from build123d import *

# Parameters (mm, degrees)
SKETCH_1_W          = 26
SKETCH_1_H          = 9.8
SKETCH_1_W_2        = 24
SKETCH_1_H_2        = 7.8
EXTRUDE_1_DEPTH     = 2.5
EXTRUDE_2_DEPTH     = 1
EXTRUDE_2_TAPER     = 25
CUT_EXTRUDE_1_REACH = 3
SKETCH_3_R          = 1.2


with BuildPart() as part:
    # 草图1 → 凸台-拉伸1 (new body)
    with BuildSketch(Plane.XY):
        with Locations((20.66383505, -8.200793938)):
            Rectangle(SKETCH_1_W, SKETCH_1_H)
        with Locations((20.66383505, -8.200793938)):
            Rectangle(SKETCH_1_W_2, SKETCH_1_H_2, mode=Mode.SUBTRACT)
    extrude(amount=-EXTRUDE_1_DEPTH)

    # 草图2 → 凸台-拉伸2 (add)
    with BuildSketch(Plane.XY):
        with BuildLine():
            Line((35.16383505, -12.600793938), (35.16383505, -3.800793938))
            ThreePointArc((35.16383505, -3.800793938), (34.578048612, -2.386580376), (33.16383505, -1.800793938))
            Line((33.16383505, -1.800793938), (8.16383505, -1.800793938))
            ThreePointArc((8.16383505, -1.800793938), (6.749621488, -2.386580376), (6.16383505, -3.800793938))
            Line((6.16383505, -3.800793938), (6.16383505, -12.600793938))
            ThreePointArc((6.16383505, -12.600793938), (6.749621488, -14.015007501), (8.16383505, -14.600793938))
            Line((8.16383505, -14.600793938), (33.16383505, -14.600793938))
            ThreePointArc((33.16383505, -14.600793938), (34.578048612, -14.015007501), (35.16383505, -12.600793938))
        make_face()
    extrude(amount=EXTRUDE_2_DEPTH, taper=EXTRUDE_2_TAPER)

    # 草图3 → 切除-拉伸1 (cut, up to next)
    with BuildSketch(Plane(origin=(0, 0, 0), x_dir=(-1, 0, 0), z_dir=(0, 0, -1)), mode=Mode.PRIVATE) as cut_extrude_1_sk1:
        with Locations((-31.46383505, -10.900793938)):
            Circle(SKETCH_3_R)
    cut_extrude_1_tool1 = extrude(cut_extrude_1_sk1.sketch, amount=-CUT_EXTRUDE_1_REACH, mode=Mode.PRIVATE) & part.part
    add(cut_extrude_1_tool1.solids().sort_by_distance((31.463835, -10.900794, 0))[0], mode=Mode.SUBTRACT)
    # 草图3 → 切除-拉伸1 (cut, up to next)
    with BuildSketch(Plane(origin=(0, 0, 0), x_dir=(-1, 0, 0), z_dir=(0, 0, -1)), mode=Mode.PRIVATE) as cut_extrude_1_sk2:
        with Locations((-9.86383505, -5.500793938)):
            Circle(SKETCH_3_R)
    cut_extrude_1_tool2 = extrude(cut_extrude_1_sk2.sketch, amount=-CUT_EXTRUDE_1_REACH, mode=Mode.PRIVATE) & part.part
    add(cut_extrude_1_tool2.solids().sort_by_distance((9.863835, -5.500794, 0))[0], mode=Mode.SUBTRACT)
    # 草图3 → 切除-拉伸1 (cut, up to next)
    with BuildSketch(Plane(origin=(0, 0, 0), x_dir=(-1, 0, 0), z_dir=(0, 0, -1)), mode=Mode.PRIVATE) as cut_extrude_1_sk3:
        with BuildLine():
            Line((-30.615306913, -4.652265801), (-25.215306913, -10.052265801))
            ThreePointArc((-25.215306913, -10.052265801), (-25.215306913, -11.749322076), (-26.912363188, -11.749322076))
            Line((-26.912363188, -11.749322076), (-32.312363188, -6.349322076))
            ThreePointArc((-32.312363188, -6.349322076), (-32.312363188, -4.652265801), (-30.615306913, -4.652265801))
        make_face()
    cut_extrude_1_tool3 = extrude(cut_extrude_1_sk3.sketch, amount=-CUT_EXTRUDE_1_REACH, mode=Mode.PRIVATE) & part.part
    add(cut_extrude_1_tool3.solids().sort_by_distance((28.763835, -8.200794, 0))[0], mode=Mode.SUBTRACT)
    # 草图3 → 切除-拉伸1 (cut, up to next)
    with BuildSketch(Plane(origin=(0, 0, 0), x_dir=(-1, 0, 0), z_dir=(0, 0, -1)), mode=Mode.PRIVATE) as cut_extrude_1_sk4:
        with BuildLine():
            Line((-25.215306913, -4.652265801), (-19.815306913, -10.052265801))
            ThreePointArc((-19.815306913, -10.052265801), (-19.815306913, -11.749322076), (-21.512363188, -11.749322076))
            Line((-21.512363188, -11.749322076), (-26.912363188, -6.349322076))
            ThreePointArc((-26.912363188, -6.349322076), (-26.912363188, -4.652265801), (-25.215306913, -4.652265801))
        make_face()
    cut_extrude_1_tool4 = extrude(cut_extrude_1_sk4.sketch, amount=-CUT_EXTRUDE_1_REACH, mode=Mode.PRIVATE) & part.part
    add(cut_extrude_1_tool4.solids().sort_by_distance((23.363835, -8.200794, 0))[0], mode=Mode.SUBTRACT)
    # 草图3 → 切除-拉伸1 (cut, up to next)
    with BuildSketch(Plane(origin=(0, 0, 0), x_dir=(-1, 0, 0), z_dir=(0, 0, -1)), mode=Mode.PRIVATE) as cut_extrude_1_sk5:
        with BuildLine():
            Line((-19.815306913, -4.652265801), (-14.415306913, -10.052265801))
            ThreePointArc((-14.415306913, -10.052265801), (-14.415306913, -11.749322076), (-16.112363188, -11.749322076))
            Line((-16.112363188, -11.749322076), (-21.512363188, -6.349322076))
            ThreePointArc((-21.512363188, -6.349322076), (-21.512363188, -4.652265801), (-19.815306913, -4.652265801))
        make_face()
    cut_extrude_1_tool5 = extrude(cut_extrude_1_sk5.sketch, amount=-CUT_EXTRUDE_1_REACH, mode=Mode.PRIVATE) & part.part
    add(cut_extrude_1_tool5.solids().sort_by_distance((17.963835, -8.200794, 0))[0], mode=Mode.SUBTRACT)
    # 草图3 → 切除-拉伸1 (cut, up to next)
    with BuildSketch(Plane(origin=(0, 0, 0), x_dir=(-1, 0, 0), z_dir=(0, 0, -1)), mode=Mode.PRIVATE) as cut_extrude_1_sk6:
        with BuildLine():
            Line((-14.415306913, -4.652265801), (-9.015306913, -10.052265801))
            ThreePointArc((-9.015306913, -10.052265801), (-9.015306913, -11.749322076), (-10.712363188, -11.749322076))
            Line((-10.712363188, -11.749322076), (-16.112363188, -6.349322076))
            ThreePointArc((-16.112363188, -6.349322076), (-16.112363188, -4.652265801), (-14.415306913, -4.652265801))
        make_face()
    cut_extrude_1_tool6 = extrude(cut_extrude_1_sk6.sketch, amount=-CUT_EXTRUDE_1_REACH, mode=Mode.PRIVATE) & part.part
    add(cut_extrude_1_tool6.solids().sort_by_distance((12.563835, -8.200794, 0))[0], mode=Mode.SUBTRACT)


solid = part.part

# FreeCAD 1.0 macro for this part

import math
import FreeCAD as App
import Part
import Sketcher
Q = App.Units.Quantity


def add_polygon(sketch, points):
    """Adds a closed chain of lines whose ends are joined by coincident constraints."""
    first, n = sketch.GeometryCount, len(points)
    for a, b in zip(points, points[1:] + points[:1]):
        sketch.addGeometry(Part.LineSegment(App.Vector(*a, 0), App.Vector(*b, 0)), False)
    for i in range(n):
        sketch.addConstraint(Sketcher.Constraint("Coincident", first + i, 2, first + (i + 1) % n, 1))

doc = App.newDocument("Part")
body = doc.addObject("PartDesign::Body", "Body")

sketch1 = doc.addObject("Sketcher::SketchObject", "Sketch")
body.addObject(sketch1)
sketch1.AttachmentSupport = (doc.XY_Plane, [""])
sketch1.MapMode = "FlatFace"
add_polygon(sketch1, [(7.663835, -3.300794), (7.663835, -13.100794), (33.663835, -13.100794), (33.663835, -3.300794)])
add_polygon(sketch1, [(32.663835, -12.100794), (8.663835, -12.100794), (8.663835, -4.300794), (32.663835, -4.300794)])
sketch1.addConstraint(Sketcher.Constraint("Vertical", 0))
sketch1.addConstraint(Sketcher.Constraint("Horizontal", 1))
sketch1.addConstraint(Sketcher.Constraint("Vertical", 2))
sketch1.addConstraint(Sketcher.Constraint("Horizontal", 3))
sketch1.addConstraint(Sketcher.Constraint("Horizontal", 4))
sketch1.addConstraint(Sketcher.Constraint("Vertical", 5))
sketch1.addConstraint(Sketcher.Constraint("Horizontal", 6))
sketch1.addConstraint(Sketcher.Constraint("Vertical", 7))
sketch1.addConstraint(Sketcher.Constraint("DistanceX", 1, 1, 1, 2, Q("26 mm")))
sketch1.addConstraint(Sketcher.Constraint("DistanceX", 4, 2, 4, 1, Q("24 mm")))
sketch1.addConstraint(Sketcher.Constraint("DistanceY", 0, 2, 0, 1, Q("9.8 mm")))
sketch1.addConstraint(Sketcher.Constraint("DistanceY", 5, 1, 5, 2, Q("7.8 mm")))
sketch1.addConstraint(Sketcher.Constraint("DistanceX", 0, 2, 4, 2, Q("1 mm")))
sketch1.addConstraint(Sketcher.Constraint("DistanceY", 0, 2, 4, 2, Q("1 mm")))
sketch1.addConstraint(Sketcher.Constraint("DistanceX", -1, 1, 0, 2, Q("7.663835 mm")))
sketch1.addConstraint(Sketcher.Constraint("DistanceY", 0, 2, -1, 1, Q("13.100794 mm")))
pad1 = doc.addObject("PartDesign::Pad", "Pad")
body.addObject(pad1)
pad1.Profile = sketch1
pad1.Length = 2.5
pad1.Reversed = True

sketch2 = doc.addObject("Sketcher::SketchObject", "Sketch001")
body.addObject(sketch2)
sketch2.AttachmentSupport = (doc.XY_Plane, [""])
sketch2.MapMode = "FlatFace"
sketch2.addGeometry(Part.LineSegment(App.Vector(35.163835, -12.600794, 0), App.Vector(35.163835, -3.800794, 0)), False)
sketch2.addGeometry(Part.ArcOfCircle(Part.Circle(App.Vector(33.163835, -3.800794, 0), App.Vector(0, 0, 1), 2), math.radians(0), math.radians(90)), False)
sketch2.addGeometry(Part.LineSegment(App.Vector(33.163835, -1.800794, 0), App.Vector(8.163835, -1.800794, 0)), False)
sketch2.addGeometry(Part.ArcOfCircle(Part.Circle(App.Vector(8.163835, -3.800794, 0), App.Vector(0, 0, 1), 2), math.radians(90), math.radians(180)), False)
sketch2.addGeometry(Part.LineSegment(App.Vector(6.163835, -3.800794, 0), App.Vector(6.163835, -12.600794, 0)), False)
sketch2.addGeometry(Part.ArcOfCircle(Part.Circle(App.Vector(8.163835, -12.600794, 0), App.Vector(0, 0, 1), 2), math.radians(180), math.radians(270)), False)
sketch2.addGeometry(Part.LineSegment(App.Vector(8.163835, -14.600794, 0), App.Vector(33.163835, -14.600794, 0)), False)
sketch2.addGeometry(Part.ArcOfCircle(Part.Circle(App.Vector(33.163835, -12.600794, 0), App.Vector(0, 0, 1), 2), math.radians(-90), math.radians(0)), False)
sketch2.addConstraint(Sketcher.Constraint("Tangent", 0, 2, 1, 1))
sketch2.addConstraint(Sketcher.Constraint("Tangent", 1, 2, 2, 1))
sketch2.addConstraint(Sketcher.Constraint("Tangent", 2, 2, 3, 1))
sketch2.addConstraint(Sketcher.Constraint("Tangent", 3, 2, 4, 1))
sketch2.addConstraint(Sketcher.Constraint("Tangent", 4, 2, 5, 1))
sketch2.addConstraint(Sketcher.Constraint("Tangent", 5, 2, 6, 1))
sketch2.addConstraint(Sketcher.Constraint("Tangent", 6, 2, 7, 1))
sketch2.addConstraint(Sketcher.Constraint("Tangent", 7, 2, 0, 1))
sketch2.addConstraint(Sketcher.Constraint("Vertical", 0))
sketch2.addConstraint(Sketcher.Constraint("Horizontal", 2))
sketch2.addConstraint(Sketcher.Constraint("Vertical", 4))
sketch2.addConstraint(Sketcher.Constraint("Horizontal", 6))
sketch2.addConstraint(Sketcher.Constraint("Equal", 1, 3))
sketch2.addConstraint(Sketcher.Constraint("Equal", 3, 5))
sketch2.addConstraint(Sketcher.Constraint("Equal", 5, 7))
sketch2.addConstraint(Sketcher.Constraint("Radius", 1, Q("2 mm")))
sketch2.addConstraint(Sketcher.Constraint("DistanceX", 2, 2, 2, 1, Q("25 mm")))
sketch2.addConstraint(Sketcher.Constraint("DistanceY", 0, 1, 0, 2, Q("8.8 mm")))
sketch2.addConstraint(Sketcher.Constraint("DistanceX", -1, 1, 1, 3, Q("33.163835 mm")))
sketch2.addConstraint(Sketcher.Constraint("DistanceY", 1, 3, -1, 1, Q("3.800794 mm")))
pad2 = doc.addObject("PartDesign::Pad", "Pad001")
body.addObject(pad2)
pad2.Profile = sketch2
pad2.Length = 1
pad2.TaperAngle = -25

sketch3 = doc.addObject("Sketcher::SketchObject", "Sketch002")
body.addObject(sketch3)
sketch3.AttachmentSupport = (doc.XY_Plane, [""])
sketch3.MapMode = "FlatFace"
sketch3.addGeometry(Part.Circle(App.Vector(31.463835, -10.900794, 0), App.Vector(0, 0, 1), 1.2), False)
sketch3.addConstraint(Sketcher.Constraint("Diameter", 0, Q("2.4 mm")))
sketch3.addConstraint(Sketcher.Constraint("DistanceX", -1, 1, 0, 3, Q("31.463835 mm")))
sketch3.addConstraint(Sketcher.Constraint("DistanceY", 0, 3, -1, 1, Q("10.900794 mm")))
pocket1 = doc.addObject("PartDesign::Pocket", "Pocket")
body.addObject(pocket1)
pocket1.Profile = sketch3
pocket1.Type = "UpToFirst"
pocket1.Reversed = True

sketch4 = doc.addObject("Sketcher::SketchObject", "Sketch003")
body.addObject(sketch4)
sketch4.AttachmentSupport = (doc.XY_Plane, [""])
sketch4.MapMode = "FlatFace"
sketch4.addGeometry(Part.Circle(App.Vector(9.863835, -5.500794, 0), App.Vector(0, 0, 1), 1.2), False)
sketch4.addConstraint(Sketcher.Constraint("Diameter", 0, Q("2.4 mm")))
sketch4.addConstraint(Sketcher.Constraint("DistanceX", -1, 1, 0, 3, Q("9.863835 mm")))
sketch4.addConstraint(Sketcher.Constraint("DistanceY", 0, 3, -1, 1, Q("5.500794 mm")))
pocket2 = doc.addObject("PartDesign::Pocket", "Pocket001")
body.addObject(pocket2)
pocket2.Profile = sketch4
pocket2.Type = "UpToFirst"
pocket2.Reversed = True

sketch5 = doc.addObject("Sketcher::SketchObject", "Sketch004")
body.addObject(sketch5)
sketch5.AttachmentSupport = (doc.XY_Plane, [""])
sketch5.MapMode = "FlatFace"
sketch5.addGeometry(Part.LineSegment(App.Vector(25.215307, -10.052266, 0), App.Vector(30.615307, -4.652266, 0)), False)
sketch5.addGeometry(Part.ArcOfCircle(Part.Circle(App.Vector(31.463835, -5.500794, 0), App.Vector(0, 0, 1), 1.2), math.radians(-45), math.radians(135)), False)
sketch5.addGeometry(Part.LineSegment(App.Vector(32.312363, -6.349322, 0), App.Vector(26.912363, -11.749322, 0)), False)
sketch5.addGeometry(Part.ArcOfCircle(Part.Circle(App.Vector(26.063835, -10.900794, 0), App.Vector(0, 0, 1), 1.2), math.radians(135), math.radians(315)), False)
sketch5.addConstraint(Sketcher.Constraint("Tangent", 0, 2, 1, 2))
sketch5.addConstraint(Sketcher.Constraint("Tangent", 1, 1, 2, 1))
sketch5.addConstraint(Sketcher.Constraint("Tangent", 2, 2, 3, 2))
sketch5.addConstraint(Sketcher.Constraint("Tangent", 3, 1, 0, 1))
sketch5.addConstraint(Sketcher.Constraint("Equal", 1, 3))
sketch5.addConstraint(Sketcher.Constraint("Radius", 1, Q("1.2 mm")))
sketch5.addConstraint(Sketcher.Constraint("Angle", 0, Q("45 deg")))
sketch5.addConstraint(Sketcher.Constraint("DistanceX", 3, 3, 1, 3, Q("5.4 mm")))
sketch5.addConstraint(Sketcher.Constraint("DistanceX", -1, 1, 1, 3, Q("31.463835 mm")))
sketch5.addConstraint(Sketcher.Constraint("DistanceY", 1, 3, -1, 1, Q("5.500794 mm")))
pocket3 = doc.addObject("PartDesign::Pocket", "Pocket002")
body.addObject(pocket3)
pocket3.Profile = sketch5
pocket3.Type = "UpToFirst"
pocket3.Reversed = True

sketch6 = doc.addObject("Sketcher::SketchObject", "Sketch005")
body.addObject(sketch6)
sketch6.AttachmentSupport = (doc.XY_Plane, [""])
sketch6.MapMode = "FlatFace"
sketch6.addGeometry(Part.LineSegment(App.Vector(19.815307, -10.052266, 0), App.Vector(25.215307, -4.652266, 0)), False)
sketch6.addGeometry(Part.ArcOfCircle(Part.Circle(App.Vector(26.063835, -5.500794, 0), App.Vector(0, 0, 1), 1.2), math.radians(-45), math.radians(135)), False)
sketch6.addGeometry(Part.LineSegment(App.Vector(26.912363, -6.349322, 0), App.Vector(21.512363, -11.749322, 0)), False)
sketch6.addGeometry(Part.ArcOfCircle(Part.Circle(App.Vector(20.663835, -10.900794, 0), App.Vector(0, 0, 1), 1.2), math.radians(135), math.radians(315)), False)
sketch6.addConstraint(Sketcher.Constraint("Tangent", 0, 2, 1, 2))
sketch6.addConstraint(Sketcher.Constraint("Tangent", 1, 1, 2, 1))
sketch6.addConstraint(Sketcher.Constraint("Tangent", 2, 2, 3, 2))
sketch6.addConstraint(Sketcher.Constraint("Tangent", 3, 1, 0, 1))
sketch6.addConstraint(Sketcher.Constraint("Equal", 1, 3))
sketch6.addConstraint(Sketcher.Constraint("Radius", 1, Q("1.2 mm")))
sketch6.addConstraint(Sketcher.Constraint("Angle", 0, Q("45 deg")))
sketch6.addConstraint(Sketcher.Constraint("DistanceX", 3, 3, 1, 3, Q("5.4 mm")))
sketch6.addConstraint(Sketcher.Constraint("DistanceX", -1, 1, 1, 3, Q("26.063835 mm")))
sketch6.addConstraint(Sketcher.Constraint("DistanceY", 1, 3, -1, 1, Q("5.500794 mm")))
pocket4 = doc.addObject("PartDesign::Pocket", "Pocket003")
body.addObject(pocket4)
pocket4.Profile = sketch6
pocket4.Type = "UpToFirst"
pocket4.Reversed = True

sketch7 = doc.addObject("Sketcher::SketchObject", "Sketch006")
body.addObject(sketch7)
sketch7.AttachmentSupport = (doc.XY_Plane, [""])
sketch7.MapMode = "FlatFace"
sketch7.addGeometry(Part.LineSegment(App.Vector(14.415307, -10.052266, 0), App.Vector(19.815307, -4.652266, 0)), False)
sketch7.addGeometry(Part.ArcOfCircle(Part.Circle(App.Vector(20.663835, -5.500794, 0), App.Vector(0, 0, 1), 1.2), math.radians(-45), math.radians(135)), False)
sketch7.addGeometry(Part.LineSegment(App.Vector(21.512363, -6.349322, 0), App.Vector(16.112363, -11.749322, 0)), False)
sketch7.addGeometry(Part.ArcOfCircle(Part.Circle(App.Vector(15.263835, -10.900794, 0), App.Vector(0, 0, 1), 1.2), math.radians(135), math.radians(315)), False)
sketch7.addConstraint(Sketcher.Constraint("Tangent", 0, 2, 1, 2))
sketch7.addConstraint(Sketcher.Constraint("Tangent", 1, 1, 2, 1))
sketch7.addConstraint(Sketcher.Constraint("Tangent", 2, 2, 3, 2))
sketch7.addConstraint(Sketcher.Constraint("Tangent", 3, 1, 0, 1))
sketch7.addConstraint(Sketcher.Constraint("Equal", 1, 3))
sketch7.addConstraint(Sketcher.Constraint("Radius", 1, Q("1.2 mm")))
sketch7.addConstraint(Sketcher.Constraint("Angle", 0, Q("45 deg")))
sketch7.addConstraint(Sketcher.Constraint("DistanceX", 3, 3, 1, 3, Q("5.4 mm")))
sketch7.addConstraint(Sketcher.Constraint("DistanceX", -1, 1, 1, 3, Q("20.663835 mm")))
sketch7.addConstraint(Sketcher.Constraint("DistanceY", 1, 3, -1, 1, Q("5.500794 mm")))
pocket5 = doc.addObject("PartDesign::Pocket", "Pocket004")
body.addObject(pocket5)
pocket5.Profile = sketch7
pocket5.Type = "UpToFirst"
pocket5.Reversed = True

sketch8 = doc.addObject("Sketcher::SketchObject", "Sketch007")
body.addObject(sketch8)
sketch8.AttachmentSupport = (doc.XY_Plane, [""])
sketch8.MapMode = "FlatFace"
sketch8.addGeometry(Part.LineSegment(App.Vector(9.015307, -10.052266, 0), App.Vector(14.415307, -4.652266, 0)), False)
sketch8.addGeometry(Part.ArcOfCircle(Part.Circle(App.Vector(15.263835, -5.500794, 0), App.Vector(0, 0, 1), 1.2), math.radians(-45), math.radians(135)), False)
sketch8.addGeometry(Part.LineSegment(App.Vector(16.112363, -6.349322, 0), App.Vector(10.712363, -11.749322, 0)), False)
sketch8.addGeometry(Part.ArcOfCircle(Part.Circle(App.Vector(9.863835, -10.900794, 0), App.Vector(0, 0, 1), 1.2), math.radians(135), math.radians(315)), False)
sketch8.addConstraint(Sketcher.Constraint("Tangent", 0, 2, 1, 2))
sketch8.addConstraint(Sketcher.Constraint("Tangent", 1, 1, 2, 1))
sketch8.addConstraint(Sketcher.Constraint("Tangent", 2, 2, 3, 2))
sketch8.addConstraint(Sketcher.Constraint("Tangent", 3, 1, 0, 1))
sketch8.addConstraint(Sketcher.Constraint("Equal", 1, 3))
sketch8.addConstraint(Sketcher.Constraint("Radius", 1, Q("1.2 mm")))
sketch8.addConstraint(Sketcher.Constraint("Angle", 0, Q("45 deg")))
sketch8.addConstraint(Sketcher.Constraint("DistanceX", 3, 3, 1, 3, Q("5.4 mm")))
sketch8.addConstraint(Sketcher.Constraint("DistanceX", -1, 1, 1, 3, Q("15.263835 mm")))
sketch8.addConstraint(Sketcher.Constraint("DistanceY", 1, 3, -1, 1, Q("5.500794 mm")))
pocket6 = doc.addObject("PartDesign::Pocket", "Pocket005")
body.addObject(pocket6)
pocket6.Profile = sketch8
pocket6.Type = "UpToFirst"
pocket6.Reversed = True

doc.recompute()
